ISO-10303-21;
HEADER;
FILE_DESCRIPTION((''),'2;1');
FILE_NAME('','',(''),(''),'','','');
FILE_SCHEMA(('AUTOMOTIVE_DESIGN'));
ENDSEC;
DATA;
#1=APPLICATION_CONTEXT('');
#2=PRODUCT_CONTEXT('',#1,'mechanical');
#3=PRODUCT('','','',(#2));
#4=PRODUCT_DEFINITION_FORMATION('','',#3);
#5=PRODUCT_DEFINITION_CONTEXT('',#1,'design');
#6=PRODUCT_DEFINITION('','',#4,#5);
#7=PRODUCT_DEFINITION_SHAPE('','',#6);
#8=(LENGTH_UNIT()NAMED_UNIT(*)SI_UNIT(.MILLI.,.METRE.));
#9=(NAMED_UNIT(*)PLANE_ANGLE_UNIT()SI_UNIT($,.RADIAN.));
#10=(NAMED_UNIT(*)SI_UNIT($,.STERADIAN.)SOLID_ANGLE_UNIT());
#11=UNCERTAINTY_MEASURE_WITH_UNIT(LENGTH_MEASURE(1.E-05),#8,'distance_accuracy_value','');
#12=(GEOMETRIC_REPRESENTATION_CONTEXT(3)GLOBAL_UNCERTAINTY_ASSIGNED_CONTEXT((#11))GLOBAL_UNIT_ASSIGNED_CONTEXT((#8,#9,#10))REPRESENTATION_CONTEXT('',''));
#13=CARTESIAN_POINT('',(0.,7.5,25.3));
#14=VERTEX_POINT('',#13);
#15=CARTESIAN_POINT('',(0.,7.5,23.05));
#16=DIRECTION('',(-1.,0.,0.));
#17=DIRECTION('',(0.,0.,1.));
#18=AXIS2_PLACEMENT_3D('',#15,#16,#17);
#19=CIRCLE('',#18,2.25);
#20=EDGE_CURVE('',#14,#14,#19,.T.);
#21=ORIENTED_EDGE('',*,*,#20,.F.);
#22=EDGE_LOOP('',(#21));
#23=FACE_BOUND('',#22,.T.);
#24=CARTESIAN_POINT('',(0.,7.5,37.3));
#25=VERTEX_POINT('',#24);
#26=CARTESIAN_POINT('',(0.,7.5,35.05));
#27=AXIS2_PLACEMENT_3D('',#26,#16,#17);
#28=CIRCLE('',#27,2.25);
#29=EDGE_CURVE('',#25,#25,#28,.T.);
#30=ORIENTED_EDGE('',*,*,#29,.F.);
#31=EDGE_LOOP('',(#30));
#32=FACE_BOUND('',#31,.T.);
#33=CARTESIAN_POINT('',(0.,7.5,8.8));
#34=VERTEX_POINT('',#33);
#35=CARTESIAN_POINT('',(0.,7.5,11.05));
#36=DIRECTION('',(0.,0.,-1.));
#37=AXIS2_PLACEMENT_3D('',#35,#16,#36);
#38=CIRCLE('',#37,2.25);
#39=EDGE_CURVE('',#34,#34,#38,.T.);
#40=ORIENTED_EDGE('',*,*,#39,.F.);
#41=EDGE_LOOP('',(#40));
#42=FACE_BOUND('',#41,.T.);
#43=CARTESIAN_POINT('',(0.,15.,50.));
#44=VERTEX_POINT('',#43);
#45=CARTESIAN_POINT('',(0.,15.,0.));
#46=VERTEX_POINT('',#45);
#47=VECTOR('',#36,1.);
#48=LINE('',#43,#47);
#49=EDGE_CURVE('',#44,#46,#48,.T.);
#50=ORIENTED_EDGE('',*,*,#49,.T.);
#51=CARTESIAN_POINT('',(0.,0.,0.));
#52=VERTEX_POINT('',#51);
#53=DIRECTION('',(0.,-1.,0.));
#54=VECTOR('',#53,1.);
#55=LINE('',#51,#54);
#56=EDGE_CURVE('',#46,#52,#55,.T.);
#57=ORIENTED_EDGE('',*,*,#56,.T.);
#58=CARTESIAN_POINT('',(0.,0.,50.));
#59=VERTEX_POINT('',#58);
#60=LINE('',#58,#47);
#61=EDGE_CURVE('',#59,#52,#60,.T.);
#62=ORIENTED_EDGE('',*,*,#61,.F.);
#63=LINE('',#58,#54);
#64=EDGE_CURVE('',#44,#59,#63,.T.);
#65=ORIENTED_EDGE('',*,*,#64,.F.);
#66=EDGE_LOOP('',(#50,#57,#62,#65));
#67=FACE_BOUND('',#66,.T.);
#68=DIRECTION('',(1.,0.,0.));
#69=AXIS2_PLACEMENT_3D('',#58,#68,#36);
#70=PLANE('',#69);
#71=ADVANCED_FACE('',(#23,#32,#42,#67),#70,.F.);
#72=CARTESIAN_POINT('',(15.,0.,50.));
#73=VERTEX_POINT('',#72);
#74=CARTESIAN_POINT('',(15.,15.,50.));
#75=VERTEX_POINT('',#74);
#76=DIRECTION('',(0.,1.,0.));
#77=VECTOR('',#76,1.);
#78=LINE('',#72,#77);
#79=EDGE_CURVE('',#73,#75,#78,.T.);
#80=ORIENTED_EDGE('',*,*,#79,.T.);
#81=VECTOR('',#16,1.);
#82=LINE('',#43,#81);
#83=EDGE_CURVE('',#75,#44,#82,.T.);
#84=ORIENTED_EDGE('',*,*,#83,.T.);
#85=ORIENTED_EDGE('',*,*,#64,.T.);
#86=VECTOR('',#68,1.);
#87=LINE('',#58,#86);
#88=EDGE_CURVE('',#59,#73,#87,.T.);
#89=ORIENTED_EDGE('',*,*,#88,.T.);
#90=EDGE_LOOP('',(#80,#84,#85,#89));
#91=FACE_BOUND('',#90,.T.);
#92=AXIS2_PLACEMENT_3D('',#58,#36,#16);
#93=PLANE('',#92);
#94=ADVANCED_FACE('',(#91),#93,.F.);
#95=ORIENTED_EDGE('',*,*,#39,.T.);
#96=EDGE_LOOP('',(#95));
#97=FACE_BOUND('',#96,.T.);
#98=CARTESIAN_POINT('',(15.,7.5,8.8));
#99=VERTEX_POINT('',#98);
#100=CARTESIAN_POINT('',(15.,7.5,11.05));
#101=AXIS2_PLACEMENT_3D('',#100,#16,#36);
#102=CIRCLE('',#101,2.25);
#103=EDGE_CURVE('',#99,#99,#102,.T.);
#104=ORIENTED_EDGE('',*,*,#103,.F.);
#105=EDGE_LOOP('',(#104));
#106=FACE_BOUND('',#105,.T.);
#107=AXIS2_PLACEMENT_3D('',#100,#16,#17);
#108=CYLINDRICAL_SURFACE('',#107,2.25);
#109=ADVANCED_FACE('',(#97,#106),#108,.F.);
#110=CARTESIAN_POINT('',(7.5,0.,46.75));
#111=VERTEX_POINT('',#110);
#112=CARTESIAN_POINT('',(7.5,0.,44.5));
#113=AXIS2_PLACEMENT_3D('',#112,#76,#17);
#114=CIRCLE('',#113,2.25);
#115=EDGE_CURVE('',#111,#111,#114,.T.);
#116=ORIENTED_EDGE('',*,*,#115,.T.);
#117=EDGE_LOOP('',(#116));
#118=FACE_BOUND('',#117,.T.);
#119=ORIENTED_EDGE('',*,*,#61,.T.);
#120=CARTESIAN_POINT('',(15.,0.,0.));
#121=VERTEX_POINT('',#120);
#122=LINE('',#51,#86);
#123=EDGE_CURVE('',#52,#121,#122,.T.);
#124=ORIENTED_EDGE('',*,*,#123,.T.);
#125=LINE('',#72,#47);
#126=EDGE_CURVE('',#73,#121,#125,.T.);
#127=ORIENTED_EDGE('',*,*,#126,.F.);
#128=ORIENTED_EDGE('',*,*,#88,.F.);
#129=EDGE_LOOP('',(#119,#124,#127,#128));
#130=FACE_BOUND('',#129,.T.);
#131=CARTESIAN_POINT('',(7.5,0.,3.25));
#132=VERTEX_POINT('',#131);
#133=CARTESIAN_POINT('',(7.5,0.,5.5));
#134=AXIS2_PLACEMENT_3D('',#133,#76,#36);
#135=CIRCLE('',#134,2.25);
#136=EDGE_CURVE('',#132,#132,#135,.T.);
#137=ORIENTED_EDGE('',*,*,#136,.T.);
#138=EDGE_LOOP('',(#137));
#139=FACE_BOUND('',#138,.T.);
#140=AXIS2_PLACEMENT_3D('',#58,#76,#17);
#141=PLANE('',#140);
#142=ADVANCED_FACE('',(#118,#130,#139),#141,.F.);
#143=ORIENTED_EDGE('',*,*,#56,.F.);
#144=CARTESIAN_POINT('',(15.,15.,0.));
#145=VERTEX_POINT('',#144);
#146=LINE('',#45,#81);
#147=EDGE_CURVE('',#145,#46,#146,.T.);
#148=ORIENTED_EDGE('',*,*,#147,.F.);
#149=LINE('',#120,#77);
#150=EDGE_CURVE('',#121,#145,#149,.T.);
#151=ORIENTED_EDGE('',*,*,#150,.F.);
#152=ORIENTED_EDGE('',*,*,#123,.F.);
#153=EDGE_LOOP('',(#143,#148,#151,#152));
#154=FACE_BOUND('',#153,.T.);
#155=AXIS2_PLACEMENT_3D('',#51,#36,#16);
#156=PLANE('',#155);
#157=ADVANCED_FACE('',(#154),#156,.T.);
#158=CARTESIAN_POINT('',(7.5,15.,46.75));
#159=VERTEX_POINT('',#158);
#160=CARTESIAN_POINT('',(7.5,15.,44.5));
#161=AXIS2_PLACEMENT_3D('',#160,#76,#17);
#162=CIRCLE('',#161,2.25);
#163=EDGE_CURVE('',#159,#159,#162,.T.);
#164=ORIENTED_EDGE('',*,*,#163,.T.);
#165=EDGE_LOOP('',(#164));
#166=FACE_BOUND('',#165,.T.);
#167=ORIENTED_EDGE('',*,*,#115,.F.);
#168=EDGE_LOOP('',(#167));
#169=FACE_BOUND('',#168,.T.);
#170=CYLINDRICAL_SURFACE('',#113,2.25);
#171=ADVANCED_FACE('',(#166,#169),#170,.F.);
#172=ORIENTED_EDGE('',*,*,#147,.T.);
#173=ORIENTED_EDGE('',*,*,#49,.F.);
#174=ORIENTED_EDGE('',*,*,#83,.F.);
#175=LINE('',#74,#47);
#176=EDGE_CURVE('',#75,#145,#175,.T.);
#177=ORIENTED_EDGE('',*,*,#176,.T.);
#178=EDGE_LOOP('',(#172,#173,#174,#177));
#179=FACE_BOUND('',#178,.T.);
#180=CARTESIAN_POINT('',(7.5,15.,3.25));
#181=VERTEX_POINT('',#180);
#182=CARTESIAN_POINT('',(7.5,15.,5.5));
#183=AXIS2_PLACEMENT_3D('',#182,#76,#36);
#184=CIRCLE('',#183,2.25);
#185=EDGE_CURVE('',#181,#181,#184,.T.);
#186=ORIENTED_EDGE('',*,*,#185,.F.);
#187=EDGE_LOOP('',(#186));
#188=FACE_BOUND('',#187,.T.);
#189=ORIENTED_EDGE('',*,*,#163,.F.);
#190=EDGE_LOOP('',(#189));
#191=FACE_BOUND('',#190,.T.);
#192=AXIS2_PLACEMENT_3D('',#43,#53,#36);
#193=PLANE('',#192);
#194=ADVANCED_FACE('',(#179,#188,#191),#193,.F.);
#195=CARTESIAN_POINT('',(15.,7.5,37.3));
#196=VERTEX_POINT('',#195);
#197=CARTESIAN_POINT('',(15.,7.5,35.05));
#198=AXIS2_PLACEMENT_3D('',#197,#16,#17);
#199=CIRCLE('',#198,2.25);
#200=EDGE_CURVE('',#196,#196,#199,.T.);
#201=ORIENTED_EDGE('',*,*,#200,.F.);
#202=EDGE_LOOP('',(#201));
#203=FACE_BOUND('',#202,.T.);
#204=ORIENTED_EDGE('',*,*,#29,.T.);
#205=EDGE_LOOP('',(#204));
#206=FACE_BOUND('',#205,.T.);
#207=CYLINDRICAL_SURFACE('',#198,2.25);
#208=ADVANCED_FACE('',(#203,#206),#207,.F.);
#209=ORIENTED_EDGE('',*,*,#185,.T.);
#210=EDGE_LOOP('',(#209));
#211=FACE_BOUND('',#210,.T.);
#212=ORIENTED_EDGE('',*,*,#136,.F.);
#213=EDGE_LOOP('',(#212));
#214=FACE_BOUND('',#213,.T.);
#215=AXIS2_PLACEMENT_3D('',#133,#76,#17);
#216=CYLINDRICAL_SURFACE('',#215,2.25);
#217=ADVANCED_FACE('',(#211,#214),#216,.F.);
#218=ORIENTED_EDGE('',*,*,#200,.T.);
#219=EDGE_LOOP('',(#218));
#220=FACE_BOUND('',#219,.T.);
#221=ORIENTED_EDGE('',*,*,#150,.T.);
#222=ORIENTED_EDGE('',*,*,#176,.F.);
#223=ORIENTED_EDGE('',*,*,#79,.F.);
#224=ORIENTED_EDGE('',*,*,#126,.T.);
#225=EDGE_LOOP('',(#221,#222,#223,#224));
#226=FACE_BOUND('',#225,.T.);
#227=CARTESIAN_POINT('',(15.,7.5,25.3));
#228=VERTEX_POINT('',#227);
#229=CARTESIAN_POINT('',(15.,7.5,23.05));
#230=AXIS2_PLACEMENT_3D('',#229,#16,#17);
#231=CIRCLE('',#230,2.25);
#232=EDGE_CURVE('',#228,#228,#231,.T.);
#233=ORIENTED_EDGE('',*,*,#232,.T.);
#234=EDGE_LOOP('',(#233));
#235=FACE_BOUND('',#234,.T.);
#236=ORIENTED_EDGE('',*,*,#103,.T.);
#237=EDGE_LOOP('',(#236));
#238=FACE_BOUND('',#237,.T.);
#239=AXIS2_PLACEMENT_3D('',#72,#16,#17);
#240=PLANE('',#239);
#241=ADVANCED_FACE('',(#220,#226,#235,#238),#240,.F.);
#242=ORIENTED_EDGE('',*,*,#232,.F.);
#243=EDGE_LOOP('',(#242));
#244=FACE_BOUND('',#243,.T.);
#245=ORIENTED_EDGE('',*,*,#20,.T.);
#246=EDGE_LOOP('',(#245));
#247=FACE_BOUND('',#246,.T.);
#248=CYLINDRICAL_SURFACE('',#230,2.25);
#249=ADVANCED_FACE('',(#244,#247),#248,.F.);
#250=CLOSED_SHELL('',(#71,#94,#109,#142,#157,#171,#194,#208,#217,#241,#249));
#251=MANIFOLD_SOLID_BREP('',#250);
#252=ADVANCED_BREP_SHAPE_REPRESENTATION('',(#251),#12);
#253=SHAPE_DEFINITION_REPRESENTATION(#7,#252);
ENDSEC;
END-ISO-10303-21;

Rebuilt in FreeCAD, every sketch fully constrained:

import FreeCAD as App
import Part
import Sketcher
from FreeCAD import Vector


def add_polygon(sketch, points):
    """Adds a closed chain of lines whose ends are joined by coincident constraints."""
    first, n = sketch.GeometryCount, len(points)
    for a, b in zip(points, points[1:] + points[:1]):
        sketch.addGeometry(Part.LineSegment(App.Vector(*a, 0), App.Vector(*b, 0)), False)
    for i in range(n):
        sketch.addConstraint(Sketcher.Constraint("Coincident", first + i, 2, first + (i + 1) % n, 1))

doc = App.newDocument("Part")
params = doc.addObject("Spreadsheet::Sheet", "Params")
for row, (alias, value) in enumerate([
    ("sketch1_width", "15 mm"),
    ("pad1_length", "50 mm"),
    ("sketch2_diameter", "4.5 mm"),
    ("sketch3_diameter", "4.5 mm"),
], start=1):
    params.set(f"A{row}", alias)
    params.set(f"B{row}", "=" + value)
    params.setAlias(f"B{row}", alias)

body = doc.addObject("PartDesign::Body", "Body")

# Sketch on XY plane
sketch1 = body.newObject("Sketcher::SketchObject", "Sketch")
sketch1.AttachmentSupport = (doc.getObject("XY_Plane"), [""])
sketch1.MapMode = "FlatFace"
add_polygon(sketch1, [(0, 15), (0, 0), (15, 0), (15, 15)])  # lines 0-3
sketch1.addConstraint([
    Sketcher.Constraint("Vertical", 0),
    Sketcher.Constraint("Horizontal", 1),
    Sketcher.Constraint("Vertical", 2),
    Sketcher.Constraint("Horizontal", 3),
    Sketcher.Constraint("Coincident", 0, 2, -1, 1),
    Sketcher.Constraint("Equal", 3, 0),
    Sketcher.Constraint("DistanceX", 1, 1, 1, 2, 15.0),
])
sketch1.setExpression("Constraints[10]", "Params.sketch1_width")
pad1 = body.newObject("PartDesign::Pad", "Pad")
pad1.Profile = sketch1
pad1.setExpression("Length", "Params.pad1_length")

# Sketch on XZ plane
sketch2 = body.newObject("Sketcher::SketchObject", "Sketch001")
sketch2.AttachmentSupport = (doc.getObject("XZ_Plane"), [""])
sketch2.MapMode = "FlatFace"
sketch2.AttachmentOffset = App.Placement(Vector(0, 0, -15), App.Rotation())
sketch2.addGeometry([
    Part.Circle(Vector(7.5, 44.5, 0), Vector(0, 0, 1), 2.25),
    Part.Circle(Vector(7.5, 5.5, 0), Vector(0, 0, 1), 2.25),
], False)
sketch2.addConstraint([
    Sketcher.Constraint("Equal", 0, 1),
    Sketcher.Constraint("Vertical", 0, 3, 1, 3),
    Sketcher.Constraint("Diameter", 0, 4.5),
    Sketcher.Constraint("DistanceY", 1, 3, 0, 3, 39.0),
    Sketcher.Constraint("DistanceX", -1, 1, 0, 3, 7.5),
    Sketcher.Constraint("DistanceY", -1, 1, 0, 3, 44.5),
])
sketch2.setExpression("Constraints[2]", "Params.sketch2_diameter")
pocket1 = body.newObject("PartDesign::Pocket", "Pocket")
pocket1.Profile = sketch2
pocket1.Type = "ThroughAll"
pocket1.Reversed = True

# Sketch on YZ plane
sketch3 = body.newObject("Sketcher::SketchObject", "Sketch002")
sketch3.AttachmentSupport = (doc.getObject("YZ_Plane"), [""])
sketch3.MapMode = "FlatFace"
sketch3.addGeometry([
    Part.Circle(Vector(7.5, 23.05, 0), Vector(0, 0, 1), 2.25),
    Part.Circle(Vector(7.5, 35.05, 0), Vector(0, 0, 1), 2.25),
    Part.Circle(Vector(7.5, 11.05, 0), Vector(0, 0, 1), 2.25),
], False)
sketch3.addConstraint([
    Sketcher.Constraint("Equal", 0, 1),
    Sketcher.Constraint("Equal", 1, 2),
    Sketcher.Constraint("Vertical", 0, 3, 1, 3),
    Sketcher.Constraint("Vertical", 1, 3, 2, 3),
    Sketcher.Constraint("Diameter", 0, 4.5),
    Sketcher.Constraint("DistanceY", 0, 3, 1, 3, 12.0),
    Sketcher.Constraint("DistanceY", 2, 3, 0, 3, 12.0),
    Sketcher.Constraint("DistanceX", -1, 1, 0, 3, 7.5),
    Sketcher.Constraint("DistanceY", -1, 1, 0, 3, 23.05),
])
sketch3.setExpression("Constraints[4]", "Params.sketch3_diameter")
pocket2 = body.newObject("PartDesign::Pocket", "Pocket001")
pocket2.Profile = sketch3
pocket2.Type = "ThroughAll"
pocket2.Reversed = True

doc.recompute()
